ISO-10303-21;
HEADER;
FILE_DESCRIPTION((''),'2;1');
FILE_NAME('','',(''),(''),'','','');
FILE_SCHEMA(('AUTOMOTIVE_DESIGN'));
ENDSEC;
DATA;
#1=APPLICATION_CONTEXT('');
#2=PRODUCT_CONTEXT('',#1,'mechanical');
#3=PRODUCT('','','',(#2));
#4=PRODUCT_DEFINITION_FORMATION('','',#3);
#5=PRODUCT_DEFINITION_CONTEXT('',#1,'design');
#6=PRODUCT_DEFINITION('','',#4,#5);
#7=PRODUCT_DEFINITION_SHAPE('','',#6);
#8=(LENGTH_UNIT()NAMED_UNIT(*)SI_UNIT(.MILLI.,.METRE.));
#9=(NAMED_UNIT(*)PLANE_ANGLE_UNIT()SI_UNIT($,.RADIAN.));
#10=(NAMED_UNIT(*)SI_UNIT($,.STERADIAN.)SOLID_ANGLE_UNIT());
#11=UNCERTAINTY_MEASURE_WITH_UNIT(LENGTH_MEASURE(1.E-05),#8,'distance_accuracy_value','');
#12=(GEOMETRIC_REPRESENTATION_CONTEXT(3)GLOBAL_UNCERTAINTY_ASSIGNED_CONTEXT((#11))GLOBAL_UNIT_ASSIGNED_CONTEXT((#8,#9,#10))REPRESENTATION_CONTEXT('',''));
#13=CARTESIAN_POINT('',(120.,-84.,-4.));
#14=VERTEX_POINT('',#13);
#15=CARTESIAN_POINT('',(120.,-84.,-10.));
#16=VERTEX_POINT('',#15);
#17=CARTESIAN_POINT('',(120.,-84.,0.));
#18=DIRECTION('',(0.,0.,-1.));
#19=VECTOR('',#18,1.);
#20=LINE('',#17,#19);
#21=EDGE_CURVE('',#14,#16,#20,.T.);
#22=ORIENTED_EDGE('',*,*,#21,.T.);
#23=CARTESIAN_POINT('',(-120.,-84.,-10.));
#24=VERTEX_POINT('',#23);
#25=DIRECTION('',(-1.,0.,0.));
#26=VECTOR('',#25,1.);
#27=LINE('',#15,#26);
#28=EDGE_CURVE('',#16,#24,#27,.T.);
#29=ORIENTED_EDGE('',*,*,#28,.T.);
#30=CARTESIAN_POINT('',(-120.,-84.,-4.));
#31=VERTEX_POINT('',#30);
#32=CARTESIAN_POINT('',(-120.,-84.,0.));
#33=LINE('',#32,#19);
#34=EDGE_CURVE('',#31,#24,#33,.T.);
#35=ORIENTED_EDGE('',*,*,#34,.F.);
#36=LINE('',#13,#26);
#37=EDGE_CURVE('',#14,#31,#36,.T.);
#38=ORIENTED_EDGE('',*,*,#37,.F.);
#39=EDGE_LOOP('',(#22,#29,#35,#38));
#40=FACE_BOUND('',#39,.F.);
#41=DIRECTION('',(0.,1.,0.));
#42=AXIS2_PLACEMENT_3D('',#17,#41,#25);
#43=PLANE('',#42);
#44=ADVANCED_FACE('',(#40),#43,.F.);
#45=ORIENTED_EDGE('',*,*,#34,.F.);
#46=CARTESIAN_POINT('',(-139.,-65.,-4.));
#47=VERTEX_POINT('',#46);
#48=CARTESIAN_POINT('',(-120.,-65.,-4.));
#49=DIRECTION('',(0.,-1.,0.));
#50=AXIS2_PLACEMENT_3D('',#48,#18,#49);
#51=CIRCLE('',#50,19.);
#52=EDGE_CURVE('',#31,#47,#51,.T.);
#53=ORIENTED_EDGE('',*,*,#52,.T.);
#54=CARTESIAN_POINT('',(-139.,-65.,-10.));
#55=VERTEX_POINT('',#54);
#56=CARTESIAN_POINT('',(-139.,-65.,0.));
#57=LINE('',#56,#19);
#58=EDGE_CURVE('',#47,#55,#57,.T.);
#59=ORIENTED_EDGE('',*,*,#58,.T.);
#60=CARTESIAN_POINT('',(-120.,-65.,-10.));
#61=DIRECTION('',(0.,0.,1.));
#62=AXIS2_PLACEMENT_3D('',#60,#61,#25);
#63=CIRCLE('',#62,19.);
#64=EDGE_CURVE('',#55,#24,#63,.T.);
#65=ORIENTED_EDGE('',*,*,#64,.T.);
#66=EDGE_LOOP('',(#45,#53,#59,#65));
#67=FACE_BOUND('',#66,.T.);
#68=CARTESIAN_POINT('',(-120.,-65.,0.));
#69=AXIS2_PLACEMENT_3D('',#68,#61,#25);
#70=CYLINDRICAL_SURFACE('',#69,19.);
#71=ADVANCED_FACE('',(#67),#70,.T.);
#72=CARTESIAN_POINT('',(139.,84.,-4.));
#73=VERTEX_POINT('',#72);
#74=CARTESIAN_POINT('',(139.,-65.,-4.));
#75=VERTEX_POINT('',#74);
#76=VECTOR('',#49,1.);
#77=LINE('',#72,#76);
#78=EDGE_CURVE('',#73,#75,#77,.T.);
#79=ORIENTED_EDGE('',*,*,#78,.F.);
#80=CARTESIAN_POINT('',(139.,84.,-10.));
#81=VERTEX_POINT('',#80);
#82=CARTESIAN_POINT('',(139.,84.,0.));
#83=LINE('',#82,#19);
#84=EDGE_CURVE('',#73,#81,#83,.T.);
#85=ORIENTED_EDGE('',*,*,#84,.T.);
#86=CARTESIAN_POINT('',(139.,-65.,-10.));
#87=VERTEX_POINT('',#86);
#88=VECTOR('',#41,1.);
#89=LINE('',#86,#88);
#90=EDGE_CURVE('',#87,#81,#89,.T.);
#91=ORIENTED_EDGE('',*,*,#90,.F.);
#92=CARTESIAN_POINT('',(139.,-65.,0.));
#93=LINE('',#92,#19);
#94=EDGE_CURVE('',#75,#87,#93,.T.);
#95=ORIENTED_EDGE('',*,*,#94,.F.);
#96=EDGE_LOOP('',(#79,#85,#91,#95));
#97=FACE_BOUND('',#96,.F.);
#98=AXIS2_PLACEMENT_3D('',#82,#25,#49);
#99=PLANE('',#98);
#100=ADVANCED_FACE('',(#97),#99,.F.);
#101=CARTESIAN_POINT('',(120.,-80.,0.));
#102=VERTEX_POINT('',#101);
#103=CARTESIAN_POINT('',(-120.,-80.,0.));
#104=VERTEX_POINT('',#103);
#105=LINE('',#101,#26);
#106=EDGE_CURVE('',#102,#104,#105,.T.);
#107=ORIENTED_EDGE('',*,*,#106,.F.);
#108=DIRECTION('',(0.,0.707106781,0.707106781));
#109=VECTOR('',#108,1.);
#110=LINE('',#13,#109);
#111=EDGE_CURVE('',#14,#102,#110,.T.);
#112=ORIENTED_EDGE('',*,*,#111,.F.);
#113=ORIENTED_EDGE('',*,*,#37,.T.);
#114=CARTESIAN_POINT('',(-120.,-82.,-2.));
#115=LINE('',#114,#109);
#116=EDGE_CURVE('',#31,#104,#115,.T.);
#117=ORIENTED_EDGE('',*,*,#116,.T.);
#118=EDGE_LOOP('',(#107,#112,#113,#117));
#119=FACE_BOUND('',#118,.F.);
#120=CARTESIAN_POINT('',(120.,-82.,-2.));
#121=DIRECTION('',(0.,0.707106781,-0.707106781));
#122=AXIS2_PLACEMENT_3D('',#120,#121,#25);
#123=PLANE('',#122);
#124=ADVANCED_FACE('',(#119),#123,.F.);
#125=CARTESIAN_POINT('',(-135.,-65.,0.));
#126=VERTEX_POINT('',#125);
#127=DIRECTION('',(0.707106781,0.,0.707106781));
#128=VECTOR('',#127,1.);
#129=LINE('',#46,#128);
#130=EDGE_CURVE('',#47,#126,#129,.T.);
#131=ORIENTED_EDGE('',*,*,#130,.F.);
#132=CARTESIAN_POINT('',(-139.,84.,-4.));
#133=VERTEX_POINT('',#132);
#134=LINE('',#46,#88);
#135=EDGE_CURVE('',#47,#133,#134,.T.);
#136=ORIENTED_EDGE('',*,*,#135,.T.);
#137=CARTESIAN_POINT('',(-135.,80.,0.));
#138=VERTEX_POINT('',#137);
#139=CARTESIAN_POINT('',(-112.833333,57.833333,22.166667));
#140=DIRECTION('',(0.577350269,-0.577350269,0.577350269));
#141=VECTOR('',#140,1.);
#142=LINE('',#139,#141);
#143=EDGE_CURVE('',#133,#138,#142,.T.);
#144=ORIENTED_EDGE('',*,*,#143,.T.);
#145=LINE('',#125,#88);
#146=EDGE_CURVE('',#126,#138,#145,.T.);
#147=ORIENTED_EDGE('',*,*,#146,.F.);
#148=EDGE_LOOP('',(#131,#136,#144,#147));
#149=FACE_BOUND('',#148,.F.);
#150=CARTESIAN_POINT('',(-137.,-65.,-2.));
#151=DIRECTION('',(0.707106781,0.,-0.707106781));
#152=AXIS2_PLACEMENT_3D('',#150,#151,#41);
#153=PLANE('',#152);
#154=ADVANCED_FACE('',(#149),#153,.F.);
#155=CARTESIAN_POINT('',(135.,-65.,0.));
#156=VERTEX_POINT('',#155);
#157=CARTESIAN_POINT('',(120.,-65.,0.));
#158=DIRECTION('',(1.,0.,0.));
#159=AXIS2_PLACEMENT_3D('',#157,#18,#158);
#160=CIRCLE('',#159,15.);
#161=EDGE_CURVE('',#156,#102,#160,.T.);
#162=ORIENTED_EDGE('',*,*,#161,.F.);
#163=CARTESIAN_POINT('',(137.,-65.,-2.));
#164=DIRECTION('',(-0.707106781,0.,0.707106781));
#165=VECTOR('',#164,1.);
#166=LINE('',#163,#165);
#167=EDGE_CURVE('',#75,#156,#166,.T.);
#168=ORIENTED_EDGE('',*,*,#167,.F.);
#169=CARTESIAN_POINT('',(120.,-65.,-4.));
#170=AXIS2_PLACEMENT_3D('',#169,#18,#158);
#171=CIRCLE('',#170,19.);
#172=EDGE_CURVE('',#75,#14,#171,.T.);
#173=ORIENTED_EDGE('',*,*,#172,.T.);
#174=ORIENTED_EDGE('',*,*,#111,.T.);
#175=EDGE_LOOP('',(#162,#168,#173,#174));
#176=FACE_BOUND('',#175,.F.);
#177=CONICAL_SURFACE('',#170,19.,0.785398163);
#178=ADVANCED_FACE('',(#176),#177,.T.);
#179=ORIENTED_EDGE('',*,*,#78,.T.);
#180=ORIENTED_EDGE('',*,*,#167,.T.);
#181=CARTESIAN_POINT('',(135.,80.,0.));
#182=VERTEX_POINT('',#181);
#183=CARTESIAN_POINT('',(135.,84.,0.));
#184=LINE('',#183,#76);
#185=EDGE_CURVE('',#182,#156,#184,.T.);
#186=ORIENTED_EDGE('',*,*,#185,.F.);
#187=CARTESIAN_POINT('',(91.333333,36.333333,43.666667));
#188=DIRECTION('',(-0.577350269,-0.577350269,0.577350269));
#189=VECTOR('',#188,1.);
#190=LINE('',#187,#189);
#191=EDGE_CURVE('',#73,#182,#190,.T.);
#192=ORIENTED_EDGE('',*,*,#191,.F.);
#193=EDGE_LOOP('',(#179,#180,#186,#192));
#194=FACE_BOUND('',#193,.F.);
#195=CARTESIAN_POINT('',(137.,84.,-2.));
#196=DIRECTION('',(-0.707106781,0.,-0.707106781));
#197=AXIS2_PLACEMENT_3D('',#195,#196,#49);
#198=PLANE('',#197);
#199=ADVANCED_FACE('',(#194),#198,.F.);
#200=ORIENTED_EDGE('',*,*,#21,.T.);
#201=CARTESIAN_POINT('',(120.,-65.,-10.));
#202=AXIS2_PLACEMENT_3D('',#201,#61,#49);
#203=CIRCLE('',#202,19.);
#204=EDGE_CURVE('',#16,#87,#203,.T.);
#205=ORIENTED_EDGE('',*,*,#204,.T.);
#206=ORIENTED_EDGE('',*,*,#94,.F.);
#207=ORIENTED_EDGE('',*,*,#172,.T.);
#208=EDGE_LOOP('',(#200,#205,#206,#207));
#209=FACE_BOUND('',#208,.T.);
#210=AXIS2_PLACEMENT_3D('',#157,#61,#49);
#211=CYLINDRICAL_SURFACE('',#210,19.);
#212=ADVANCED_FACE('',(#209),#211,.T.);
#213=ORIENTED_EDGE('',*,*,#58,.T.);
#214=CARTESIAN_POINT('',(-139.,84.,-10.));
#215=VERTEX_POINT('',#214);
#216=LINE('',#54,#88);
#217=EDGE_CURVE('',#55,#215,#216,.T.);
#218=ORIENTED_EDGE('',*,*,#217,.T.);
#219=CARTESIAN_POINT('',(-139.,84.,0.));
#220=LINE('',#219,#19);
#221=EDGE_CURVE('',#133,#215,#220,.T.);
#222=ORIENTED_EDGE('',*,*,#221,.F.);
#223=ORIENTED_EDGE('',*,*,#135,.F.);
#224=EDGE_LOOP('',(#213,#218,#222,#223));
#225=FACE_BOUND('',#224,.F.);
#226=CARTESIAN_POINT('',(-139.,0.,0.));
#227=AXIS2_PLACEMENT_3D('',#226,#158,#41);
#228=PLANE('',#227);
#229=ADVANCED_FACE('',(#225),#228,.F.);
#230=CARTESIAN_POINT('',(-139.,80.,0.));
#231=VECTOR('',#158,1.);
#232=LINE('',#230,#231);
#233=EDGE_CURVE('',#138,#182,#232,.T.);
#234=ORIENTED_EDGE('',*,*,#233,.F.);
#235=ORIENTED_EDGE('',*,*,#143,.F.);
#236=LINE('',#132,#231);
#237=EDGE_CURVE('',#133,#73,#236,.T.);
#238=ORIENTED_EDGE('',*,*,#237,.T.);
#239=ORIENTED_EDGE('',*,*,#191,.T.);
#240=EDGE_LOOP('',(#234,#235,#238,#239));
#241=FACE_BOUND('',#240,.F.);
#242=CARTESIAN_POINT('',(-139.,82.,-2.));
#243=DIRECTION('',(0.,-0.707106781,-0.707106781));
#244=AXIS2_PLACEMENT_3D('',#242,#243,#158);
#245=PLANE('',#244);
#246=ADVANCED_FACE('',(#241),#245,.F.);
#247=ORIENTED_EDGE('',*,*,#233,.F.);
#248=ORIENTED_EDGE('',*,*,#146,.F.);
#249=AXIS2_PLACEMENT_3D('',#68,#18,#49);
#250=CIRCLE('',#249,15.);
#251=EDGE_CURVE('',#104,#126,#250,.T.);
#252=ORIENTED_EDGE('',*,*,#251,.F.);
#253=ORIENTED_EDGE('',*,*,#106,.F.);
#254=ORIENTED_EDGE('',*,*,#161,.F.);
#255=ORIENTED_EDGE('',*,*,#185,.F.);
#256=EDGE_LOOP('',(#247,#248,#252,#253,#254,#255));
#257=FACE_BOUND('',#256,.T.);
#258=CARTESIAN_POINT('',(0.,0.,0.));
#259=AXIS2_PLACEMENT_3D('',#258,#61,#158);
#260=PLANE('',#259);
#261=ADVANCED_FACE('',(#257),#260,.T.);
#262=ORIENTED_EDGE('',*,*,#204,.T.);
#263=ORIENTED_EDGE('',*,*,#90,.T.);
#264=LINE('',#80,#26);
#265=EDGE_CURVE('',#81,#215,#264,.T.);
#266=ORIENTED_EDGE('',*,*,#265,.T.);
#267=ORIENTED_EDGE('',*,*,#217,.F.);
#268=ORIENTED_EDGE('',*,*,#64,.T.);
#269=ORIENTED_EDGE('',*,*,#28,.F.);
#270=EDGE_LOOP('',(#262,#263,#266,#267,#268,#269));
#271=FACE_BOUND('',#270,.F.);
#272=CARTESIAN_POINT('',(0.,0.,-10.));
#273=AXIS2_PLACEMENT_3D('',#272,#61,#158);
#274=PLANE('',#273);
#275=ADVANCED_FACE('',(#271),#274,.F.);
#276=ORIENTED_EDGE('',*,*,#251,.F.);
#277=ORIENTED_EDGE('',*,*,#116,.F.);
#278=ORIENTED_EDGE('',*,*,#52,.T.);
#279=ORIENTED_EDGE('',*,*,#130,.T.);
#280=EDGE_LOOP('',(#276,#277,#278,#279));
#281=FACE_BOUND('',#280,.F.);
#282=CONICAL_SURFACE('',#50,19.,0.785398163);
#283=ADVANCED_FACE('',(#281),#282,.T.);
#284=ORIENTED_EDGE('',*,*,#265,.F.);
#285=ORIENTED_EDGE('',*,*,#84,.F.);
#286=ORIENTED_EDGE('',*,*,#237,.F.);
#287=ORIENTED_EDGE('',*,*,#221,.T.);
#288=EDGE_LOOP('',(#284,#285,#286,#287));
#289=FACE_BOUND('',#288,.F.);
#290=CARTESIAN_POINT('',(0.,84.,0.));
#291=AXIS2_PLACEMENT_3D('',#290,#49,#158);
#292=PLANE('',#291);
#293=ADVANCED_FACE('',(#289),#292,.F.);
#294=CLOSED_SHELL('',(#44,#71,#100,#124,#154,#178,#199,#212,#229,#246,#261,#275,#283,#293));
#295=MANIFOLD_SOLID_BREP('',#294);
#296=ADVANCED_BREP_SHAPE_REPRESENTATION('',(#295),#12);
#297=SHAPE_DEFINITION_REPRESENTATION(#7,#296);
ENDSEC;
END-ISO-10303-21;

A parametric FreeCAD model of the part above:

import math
import FreeCAD as App
import Part
import Sketcher
from FreeCAD import Vector
Q = App.Units.Quantity


def edges_at(feature, points):
    """Names of the edges that pass closest to the given points."""
    edges = feature.Shape.Edges
    near = lambda p: min(range(len(edges)), key=lambda i: edges[i].distToShape(Part.Vertex(*p))[0])
    return sorted({f"Edge{near(p) + 1}" for p in points})

doc = App.newDocument("Part")
body = doc.addObject("PartDesign::Body", "Body")

sketch1 = body.newObject("Sketcher::SketchObject", "Sketch")
sketch1.AttachmentSupport = (doc.getObject("XY_Plane"), [""])
sketch1.MapMode = "FlatFace"
sketch1.addGeometry([
    Part.LineSegment(Vector(139, 84, 0), Vector(-139, 84, 0)),
    Part.LineSegment(Vector(-139, 84, 0), Vector(-139, -65, 0)),
    Part.ArcOfCircle(Part.Circle(Vector(-120, -65, 0), Vector(0, 0, 1), 19), math.radians(180), math.radians(270)),
    Part.LineSegment(Vector(-120, -84, 0), Vector(120, -84, 0)),
    Part.ArcOfCircle(Part.Circle(Vector(120, -65, 0), Vector(0, 0, 1), 19), math.radians(-90), math.radians(0)),
    Part.LineSegment(Vector(139, -65, 0), Vector(139, 84, 0)),
], False)
sketch1.addConstraint([
    Sketcher.Constraint("Coincident", 0, 2, 1, 1),
    Sketcher.Constraint("Tangent", 1, 2, 2, 1),
    Sketcher.Constraint("Tangent", 2, 2, 3, 1),
    Sketcher.Constraint("Tangent", 3, 2, 4, 1),
    Sketcher.Constraint("Tangent", 4, 2, 5, 1),
    Sketcher.Constraint("Coincident", 5, 2, 0, 1),
    Sketcher.Constraint("Horizontal", 0),
    Sketcher.Constraint("Vertical", 1),
    Sketcher.Constraint("Horizontal", 3),
    Sketcher.Constraint("Vertical", 5),
    Sketcher.Constraint("Equal", 2, 4),
    Sketcher.Constraint("Radius", 2, Q("19 mm")),
    Sketcher.Constraint("DistanceX", 0, 2, 0, 1, Q("278 mm")),
    Sketcher.Constraint("DistanceY", 2, 2, 0, 2, Q("168 mm")),
    Sketcher.Constraint("DistanceX", 2, 3, -1, 1, Q("120 mm")),
    Sketcher.Constraint("DistanceY", 2, 3, -1, 1, Q("65 mm")),
])
pad1 = body.newObject("PartDesign::Pad", "Pad")
pad1.Profile = sketch1
pad1.Length = 10
pad1.Reversed = True
doc.recompute()

chamfer = body.newObject("PartDesign::Chamfer", "Chamfer")
chamfer.Base = (pad1, edges_at(pad1, [
    (139, 9.5, 0),
    (133.435, -78.435, 0),
    (0, -84, 0),
    (-133.435, -78.435, 0),
    (-139, 9.5, 0),
    (0, 84, 0),
]))
chamfer.Size = 4

doc.recompute()
